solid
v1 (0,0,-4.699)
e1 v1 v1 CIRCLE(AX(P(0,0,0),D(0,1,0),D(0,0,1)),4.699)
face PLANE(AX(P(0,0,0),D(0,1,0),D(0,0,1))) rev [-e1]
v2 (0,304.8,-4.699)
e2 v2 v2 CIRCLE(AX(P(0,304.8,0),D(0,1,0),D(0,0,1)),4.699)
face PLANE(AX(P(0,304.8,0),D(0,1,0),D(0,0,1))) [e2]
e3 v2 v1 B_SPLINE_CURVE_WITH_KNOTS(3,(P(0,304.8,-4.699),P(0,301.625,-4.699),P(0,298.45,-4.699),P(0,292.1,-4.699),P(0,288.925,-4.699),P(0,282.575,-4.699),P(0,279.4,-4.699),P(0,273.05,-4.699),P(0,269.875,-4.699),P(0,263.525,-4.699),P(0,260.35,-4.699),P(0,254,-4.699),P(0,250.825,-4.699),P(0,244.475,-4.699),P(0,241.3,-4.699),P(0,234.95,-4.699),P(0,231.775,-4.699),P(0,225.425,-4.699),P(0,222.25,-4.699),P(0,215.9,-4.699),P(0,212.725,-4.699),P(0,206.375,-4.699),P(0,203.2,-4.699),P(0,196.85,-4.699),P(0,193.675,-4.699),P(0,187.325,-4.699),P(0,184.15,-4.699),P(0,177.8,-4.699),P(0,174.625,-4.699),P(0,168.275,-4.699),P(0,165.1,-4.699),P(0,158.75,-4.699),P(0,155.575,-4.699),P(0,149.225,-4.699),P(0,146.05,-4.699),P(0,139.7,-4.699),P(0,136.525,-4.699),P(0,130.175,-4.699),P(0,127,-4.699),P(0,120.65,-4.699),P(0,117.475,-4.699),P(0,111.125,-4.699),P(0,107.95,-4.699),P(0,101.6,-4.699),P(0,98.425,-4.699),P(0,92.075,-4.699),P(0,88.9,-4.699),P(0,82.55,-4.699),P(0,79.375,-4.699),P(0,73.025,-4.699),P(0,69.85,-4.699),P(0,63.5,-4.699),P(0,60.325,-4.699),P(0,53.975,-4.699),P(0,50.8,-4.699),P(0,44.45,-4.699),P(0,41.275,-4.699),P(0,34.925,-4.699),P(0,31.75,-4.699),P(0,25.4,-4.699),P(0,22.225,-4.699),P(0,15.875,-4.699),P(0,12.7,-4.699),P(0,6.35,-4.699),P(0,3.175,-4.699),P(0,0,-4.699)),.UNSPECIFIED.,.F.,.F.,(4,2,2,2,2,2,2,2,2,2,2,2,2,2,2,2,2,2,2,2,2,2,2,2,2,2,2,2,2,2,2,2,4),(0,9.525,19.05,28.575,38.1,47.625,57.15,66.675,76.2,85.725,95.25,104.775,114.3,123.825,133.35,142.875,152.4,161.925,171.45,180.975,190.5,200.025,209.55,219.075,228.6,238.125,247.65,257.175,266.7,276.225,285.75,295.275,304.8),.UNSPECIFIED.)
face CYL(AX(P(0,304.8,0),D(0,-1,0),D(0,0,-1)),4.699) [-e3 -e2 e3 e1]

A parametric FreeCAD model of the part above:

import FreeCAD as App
import Part
import Sketcher

V = App.Vector
Q = App.Units.Quantity

doc = App.newDocument("Part")
params = doc.addObject("Spreadsheet::Sheet", "Params")
for row, (alias, value) in enumerate([
    ("sketch1_diameter", "0.37 in"),
    ("pad1_length", "12 in"),
], start=1):
    params.set(f"A{row}", alias)
    params.set(f"B{row}", "=" + value)
    params.setAlias(f"B{row}", alias)

body = doc.addObject("PartDesign::Body", "Body")

# Sketch on XZ plane
sketch1 = doc.addObject("Sketcher::SketchObject", "Sketch")
body.addObject(sketch1)
sketch1.AttachmentSupport = (doc.XZ_Plane, [""])
sketch1.MapMode = "FlatFace"
sketch1.addGeometry(Part.Circle(V(0, 0, 0), V(0, 0, 1), 4.7), False)
sketch1.addConstraint(Sketcher.Constraint("Coincident", 0, 3, -1, 1))
sketch1.addConstraint(Sketcher.Constraint("Diameter", 0, Q("0.37 in")))
sketch1.setExpression("Constraints[1]", "Params.sketch1_diameter")
pad1 = doc.addObject("PartDesign::Pad", "Pad")
body.addObject(pad1)
pad1.Profile = sketch1
pad1.setExpression("Length", "Params.pad1_length")
pad1.Reversed = True

doc.recompute()
